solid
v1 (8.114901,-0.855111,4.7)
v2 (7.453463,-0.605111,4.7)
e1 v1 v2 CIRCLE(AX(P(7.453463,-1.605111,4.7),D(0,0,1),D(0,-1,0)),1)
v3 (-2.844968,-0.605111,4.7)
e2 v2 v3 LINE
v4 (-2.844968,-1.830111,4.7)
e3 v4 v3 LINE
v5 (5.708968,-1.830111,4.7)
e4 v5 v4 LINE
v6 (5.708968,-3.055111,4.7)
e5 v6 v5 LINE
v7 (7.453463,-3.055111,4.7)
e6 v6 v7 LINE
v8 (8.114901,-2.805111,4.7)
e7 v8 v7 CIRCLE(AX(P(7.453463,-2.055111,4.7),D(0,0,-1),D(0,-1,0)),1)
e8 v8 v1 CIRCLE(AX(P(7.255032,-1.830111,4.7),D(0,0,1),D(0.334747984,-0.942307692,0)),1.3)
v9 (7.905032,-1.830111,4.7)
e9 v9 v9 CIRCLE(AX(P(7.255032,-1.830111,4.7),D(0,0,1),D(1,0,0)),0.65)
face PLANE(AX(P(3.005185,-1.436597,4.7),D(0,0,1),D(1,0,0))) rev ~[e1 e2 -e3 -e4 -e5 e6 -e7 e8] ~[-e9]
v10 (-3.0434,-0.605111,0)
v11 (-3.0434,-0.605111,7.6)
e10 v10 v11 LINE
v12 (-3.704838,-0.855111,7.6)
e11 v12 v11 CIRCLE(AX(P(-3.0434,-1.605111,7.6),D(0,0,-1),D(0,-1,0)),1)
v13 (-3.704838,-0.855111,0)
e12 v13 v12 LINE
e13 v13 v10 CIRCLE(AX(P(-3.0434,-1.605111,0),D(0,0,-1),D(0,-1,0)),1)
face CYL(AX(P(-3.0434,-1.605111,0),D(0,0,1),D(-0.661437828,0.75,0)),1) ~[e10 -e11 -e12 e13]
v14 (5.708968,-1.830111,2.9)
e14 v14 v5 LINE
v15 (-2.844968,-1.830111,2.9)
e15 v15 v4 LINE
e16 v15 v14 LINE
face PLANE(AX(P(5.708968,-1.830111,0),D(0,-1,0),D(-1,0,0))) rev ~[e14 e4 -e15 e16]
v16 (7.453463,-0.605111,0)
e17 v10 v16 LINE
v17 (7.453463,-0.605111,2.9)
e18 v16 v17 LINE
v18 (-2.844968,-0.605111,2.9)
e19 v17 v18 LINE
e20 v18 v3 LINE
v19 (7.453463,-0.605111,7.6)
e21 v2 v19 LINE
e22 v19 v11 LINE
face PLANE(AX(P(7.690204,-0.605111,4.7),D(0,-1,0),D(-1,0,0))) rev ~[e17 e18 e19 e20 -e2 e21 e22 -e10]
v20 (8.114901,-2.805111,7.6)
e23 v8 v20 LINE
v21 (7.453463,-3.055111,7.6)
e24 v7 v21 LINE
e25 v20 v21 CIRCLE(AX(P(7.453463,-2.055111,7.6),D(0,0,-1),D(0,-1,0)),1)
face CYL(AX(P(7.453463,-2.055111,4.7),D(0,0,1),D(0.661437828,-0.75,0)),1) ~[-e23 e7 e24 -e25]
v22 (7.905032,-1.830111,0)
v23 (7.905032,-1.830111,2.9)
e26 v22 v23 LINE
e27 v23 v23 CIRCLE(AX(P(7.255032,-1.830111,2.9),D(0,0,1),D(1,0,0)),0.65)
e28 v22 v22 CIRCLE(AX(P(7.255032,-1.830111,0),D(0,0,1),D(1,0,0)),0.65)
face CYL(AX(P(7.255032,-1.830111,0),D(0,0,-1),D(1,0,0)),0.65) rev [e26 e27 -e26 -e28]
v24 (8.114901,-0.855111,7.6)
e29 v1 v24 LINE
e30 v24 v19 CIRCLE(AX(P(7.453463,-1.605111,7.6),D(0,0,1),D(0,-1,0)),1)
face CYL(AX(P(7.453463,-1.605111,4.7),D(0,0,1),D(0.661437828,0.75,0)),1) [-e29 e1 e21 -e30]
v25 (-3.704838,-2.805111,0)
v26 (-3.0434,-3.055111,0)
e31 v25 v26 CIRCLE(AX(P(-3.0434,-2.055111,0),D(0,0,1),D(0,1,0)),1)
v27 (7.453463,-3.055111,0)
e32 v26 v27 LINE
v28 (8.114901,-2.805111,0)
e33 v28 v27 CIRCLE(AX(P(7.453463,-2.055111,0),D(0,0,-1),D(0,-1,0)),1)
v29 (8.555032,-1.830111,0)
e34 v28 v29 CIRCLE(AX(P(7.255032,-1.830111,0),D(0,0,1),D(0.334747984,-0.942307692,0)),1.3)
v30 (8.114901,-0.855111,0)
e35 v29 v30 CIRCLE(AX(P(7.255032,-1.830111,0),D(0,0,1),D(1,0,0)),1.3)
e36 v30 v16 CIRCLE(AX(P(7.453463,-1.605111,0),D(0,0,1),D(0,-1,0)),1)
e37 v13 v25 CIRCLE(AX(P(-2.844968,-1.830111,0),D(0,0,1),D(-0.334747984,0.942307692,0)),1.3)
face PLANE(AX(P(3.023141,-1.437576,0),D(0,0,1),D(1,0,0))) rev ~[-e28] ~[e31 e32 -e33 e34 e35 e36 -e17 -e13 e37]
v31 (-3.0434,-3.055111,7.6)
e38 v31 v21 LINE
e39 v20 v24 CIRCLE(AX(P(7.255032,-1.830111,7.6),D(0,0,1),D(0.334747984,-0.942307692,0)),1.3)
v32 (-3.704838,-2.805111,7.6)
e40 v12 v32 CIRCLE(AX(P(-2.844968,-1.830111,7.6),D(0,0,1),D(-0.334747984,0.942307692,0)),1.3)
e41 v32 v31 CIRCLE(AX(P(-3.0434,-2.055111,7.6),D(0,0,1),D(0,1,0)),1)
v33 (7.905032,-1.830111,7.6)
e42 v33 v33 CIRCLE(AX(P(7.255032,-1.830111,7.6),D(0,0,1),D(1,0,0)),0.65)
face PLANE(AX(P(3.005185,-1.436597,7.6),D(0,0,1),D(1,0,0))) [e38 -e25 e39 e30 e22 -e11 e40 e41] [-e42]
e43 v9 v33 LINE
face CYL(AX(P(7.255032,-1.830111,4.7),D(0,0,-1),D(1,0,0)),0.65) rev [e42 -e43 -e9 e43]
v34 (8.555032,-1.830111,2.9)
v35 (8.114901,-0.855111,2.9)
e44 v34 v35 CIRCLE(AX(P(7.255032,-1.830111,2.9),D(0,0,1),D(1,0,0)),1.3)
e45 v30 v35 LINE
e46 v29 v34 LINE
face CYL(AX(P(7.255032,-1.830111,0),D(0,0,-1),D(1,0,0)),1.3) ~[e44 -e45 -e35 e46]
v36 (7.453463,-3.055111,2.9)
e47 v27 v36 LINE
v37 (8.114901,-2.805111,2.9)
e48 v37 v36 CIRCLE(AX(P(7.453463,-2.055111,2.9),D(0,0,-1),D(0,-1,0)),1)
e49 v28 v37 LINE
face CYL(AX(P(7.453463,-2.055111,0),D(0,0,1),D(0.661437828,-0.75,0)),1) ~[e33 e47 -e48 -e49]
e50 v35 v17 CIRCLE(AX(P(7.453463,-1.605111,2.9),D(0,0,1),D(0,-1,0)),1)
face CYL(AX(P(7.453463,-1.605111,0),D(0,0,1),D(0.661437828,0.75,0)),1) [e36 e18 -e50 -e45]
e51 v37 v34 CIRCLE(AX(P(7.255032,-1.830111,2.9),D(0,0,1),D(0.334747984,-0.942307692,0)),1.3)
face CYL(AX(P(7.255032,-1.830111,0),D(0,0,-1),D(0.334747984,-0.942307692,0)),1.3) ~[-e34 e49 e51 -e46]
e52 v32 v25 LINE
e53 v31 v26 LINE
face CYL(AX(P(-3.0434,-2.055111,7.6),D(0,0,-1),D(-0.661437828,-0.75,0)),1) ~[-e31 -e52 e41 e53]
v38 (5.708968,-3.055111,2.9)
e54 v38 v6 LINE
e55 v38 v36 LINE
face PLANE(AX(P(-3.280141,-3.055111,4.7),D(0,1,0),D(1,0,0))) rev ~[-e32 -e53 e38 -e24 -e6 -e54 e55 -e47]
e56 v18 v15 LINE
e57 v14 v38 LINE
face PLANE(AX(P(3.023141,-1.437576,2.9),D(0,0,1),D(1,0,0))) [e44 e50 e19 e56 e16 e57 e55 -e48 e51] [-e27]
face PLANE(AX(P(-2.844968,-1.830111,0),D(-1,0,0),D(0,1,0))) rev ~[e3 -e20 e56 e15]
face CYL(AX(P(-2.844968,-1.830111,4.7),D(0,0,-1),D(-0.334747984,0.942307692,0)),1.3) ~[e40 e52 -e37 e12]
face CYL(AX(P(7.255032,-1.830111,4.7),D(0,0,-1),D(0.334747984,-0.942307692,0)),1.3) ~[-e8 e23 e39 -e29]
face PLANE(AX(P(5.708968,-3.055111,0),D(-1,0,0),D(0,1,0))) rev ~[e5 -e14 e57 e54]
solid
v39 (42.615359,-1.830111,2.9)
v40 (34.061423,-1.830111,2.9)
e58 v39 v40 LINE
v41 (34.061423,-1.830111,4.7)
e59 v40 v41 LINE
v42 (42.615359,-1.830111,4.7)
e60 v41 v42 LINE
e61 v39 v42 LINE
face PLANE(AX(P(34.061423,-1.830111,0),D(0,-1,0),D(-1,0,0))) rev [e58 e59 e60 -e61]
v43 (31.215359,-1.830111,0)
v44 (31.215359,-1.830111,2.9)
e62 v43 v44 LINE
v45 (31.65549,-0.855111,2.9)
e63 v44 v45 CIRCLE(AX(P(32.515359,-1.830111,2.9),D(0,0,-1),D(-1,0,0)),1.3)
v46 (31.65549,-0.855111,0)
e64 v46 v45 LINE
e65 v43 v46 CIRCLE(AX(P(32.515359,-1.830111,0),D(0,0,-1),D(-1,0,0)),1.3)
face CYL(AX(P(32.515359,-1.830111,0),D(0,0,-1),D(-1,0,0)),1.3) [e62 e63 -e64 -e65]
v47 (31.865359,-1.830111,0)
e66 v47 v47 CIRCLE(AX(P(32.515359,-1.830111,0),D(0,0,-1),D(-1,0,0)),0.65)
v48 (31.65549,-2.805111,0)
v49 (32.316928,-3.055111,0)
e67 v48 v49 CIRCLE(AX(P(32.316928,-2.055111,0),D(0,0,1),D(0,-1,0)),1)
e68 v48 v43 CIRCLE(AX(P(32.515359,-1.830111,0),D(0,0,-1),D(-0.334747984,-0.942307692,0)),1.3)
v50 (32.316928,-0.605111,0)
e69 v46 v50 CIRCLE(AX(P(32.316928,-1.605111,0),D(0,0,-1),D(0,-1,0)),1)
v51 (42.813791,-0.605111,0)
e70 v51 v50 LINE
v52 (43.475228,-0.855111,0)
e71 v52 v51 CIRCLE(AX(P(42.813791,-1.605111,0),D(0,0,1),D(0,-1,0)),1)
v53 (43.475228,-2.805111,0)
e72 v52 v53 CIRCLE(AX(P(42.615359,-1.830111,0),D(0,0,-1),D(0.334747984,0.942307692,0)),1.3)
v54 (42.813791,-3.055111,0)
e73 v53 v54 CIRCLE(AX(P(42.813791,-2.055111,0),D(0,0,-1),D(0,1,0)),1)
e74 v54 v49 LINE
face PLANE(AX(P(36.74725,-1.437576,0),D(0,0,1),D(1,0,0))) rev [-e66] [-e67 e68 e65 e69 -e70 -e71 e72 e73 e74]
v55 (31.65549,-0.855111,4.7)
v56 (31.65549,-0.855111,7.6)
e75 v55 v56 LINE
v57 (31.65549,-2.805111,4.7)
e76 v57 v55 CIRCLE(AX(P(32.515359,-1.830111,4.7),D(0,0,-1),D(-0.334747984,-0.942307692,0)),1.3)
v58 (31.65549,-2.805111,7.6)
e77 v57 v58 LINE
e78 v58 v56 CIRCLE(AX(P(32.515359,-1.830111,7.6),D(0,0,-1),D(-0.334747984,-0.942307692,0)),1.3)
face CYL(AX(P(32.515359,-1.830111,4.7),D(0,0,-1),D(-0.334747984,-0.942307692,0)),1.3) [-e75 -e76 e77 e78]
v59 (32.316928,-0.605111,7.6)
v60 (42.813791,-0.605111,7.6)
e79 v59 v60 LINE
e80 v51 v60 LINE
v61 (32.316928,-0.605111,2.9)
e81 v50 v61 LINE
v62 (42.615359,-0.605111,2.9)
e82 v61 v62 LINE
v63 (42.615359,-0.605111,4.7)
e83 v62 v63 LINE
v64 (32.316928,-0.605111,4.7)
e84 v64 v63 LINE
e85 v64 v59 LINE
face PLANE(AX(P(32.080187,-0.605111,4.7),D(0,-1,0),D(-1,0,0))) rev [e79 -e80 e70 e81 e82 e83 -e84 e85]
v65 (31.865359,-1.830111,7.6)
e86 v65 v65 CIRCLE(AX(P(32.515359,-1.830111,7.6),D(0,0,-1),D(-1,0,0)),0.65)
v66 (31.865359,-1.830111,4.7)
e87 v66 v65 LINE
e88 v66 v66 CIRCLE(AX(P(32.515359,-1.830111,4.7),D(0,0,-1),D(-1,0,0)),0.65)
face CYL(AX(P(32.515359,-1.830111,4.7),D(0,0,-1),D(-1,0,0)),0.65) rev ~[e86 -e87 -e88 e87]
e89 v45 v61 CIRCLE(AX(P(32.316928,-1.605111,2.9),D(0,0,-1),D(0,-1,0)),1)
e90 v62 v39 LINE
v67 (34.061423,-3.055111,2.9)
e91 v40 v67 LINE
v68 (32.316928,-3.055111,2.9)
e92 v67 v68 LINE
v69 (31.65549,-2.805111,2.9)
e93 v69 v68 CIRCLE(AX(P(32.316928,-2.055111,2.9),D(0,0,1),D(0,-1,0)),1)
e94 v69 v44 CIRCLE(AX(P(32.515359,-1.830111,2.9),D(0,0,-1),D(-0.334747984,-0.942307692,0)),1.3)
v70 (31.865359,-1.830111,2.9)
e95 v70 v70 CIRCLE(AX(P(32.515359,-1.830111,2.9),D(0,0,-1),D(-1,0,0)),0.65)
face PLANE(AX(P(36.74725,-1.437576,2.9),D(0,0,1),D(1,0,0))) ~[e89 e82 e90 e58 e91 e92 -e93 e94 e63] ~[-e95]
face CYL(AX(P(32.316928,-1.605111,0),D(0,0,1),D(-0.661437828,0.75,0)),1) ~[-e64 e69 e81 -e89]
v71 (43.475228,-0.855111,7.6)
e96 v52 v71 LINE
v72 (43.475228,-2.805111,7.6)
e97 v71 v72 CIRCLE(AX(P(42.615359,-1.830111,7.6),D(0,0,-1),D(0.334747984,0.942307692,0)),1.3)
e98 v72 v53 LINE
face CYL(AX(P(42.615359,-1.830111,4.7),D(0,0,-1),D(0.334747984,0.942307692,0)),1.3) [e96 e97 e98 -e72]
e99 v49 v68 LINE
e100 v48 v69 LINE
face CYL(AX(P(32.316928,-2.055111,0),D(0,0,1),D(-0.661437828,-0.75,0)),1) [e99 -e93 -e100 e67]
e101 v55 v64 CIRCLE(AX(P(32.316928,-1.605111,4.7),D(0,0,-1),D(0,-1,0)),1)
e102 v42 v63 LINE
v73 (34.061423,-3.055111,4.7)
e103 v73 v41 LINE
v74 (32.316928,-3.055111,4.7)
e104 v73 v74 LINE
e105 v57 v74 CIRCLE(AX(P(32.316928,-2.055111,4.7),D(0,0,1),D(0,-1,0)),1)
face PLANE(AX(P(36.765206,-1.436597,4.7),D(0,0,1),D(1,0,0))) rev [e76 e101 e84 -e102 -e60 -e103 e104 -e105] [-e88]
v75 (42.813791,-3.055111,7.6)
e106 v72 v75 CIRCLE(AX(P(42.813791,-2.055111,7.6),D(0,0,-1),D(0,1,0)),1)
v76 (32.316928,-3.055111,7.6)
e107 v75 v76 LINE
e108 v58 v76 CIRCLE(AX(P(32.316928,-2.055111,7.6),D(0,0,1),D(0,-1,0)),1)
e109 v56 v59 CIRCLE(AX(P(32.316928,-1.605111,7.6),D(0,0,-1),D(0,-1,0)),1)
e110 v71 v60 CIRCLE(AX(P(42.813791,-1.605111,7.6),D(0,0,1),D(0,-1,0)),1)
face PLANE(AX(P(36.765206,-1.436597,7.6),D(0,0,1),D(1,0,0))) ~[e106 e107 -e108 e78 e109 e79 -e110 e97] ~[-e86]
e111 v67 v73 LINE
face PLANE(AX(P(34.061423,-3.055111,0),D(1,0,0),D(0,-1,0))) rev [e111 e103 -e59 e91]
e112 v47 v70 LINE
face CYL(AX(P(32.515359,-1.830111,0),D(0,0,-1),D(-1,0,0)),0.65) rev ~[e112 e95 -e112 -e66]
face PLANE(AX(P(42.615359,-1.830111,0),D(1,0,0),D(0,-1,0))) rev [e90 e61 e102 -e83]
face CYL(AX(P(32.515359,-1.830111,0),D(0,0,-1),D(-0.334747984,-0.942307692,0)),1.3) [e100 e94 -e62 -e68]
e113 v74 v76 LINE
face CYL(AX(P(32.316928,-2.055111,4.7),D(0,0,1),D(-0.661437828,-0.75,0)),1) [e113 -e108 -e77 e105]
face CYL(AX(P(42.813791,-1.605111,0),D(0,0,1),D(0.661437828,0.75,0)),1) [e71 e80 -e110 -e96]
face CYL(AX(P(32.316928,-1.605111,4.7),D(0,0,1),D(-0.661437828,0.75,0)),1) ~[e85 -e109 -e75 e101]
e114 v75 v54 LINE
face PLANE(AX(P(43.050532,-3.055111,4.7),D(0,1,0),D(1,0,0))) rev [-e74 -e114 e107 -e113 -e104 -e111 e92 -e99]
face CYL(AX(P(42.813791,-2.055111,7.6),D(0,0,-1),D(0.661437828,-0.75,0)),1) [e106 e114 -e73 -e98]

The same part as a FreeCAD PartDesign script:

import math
import FreeCAD as App
import Part
import Sketcher


def edges_at(feature, points):
    """Names of the edges that pass closest to the given points."""
    edges = feature.Shape.Edges
    near = lambda p: min(range(len(edges)), key=lambda i: edges[i].distToShape(Part.Vertex(*p))[0])
    return sorted({f"Edge{near(p) + 1}" for p in points})

doc = App.newDocument("Part")
body = doc.addObject("PartDesign::Body", "Body")

# Sketch on XY plane
sketch1 = body.newObject("Sketcher::SketchObject", "Sketch")
sketch1.AttachmentSupport = (doc.getObject("XY_Plane"), [""])
sketch1.MapMode = "FlatFace"
sketch1.addGeometry([
    Part.ArcOfCircle(Part.Circle(App.Vector(7.3, -1.8, 0), App.Vector(0, 0, 1), 1.3), math.radians(-70), math.radians(0)),  # 0
    Part.ArcOfCircle(Part.Circle(App.Vector(7.3, -1.8, 0), App.Vector(0, 0, 1), 1.3), math.radians(0), math.radians(70)),  # 1
    Part.LineSegment(App.Vector(7.7, -0.6, 0), App.Vector(-3.3, -0.6, 0)),  # 2
    Part.ArcOfCircle(Part.Circle(App.Vector(-2.8, -1.8, 0), App.Vector(0, 0, 1), 1.3), math.radians(110), math.radians(250)),  # 3
    Part.LineSegment(App.Vector(-3.3, -3.1, 0), App.Vector(7.7, -3.1, 0)),  # 4
    Part.Circle(App.Vector(7.3, -1.8, 0), App.Vector(0, 0, 1), 0.7),  # 5
], False)
sketch1.addConstraint([
    Sketcher.Constraint("Tangent", 0, 2, 1, 1),
    Sketcher.Constraint("Coincident", 1, 2, 2, 1),
    Sketcher.Constraint("Coincident", 2, 2, 3, 1),
    Sketcher.Constraint("Coincident", 3, 2, 4, 1),
    Sketcher.Constraint("Coincident", 4, 2, 0, 1),
    Sketcher.Constraint("Horizontal", 2),
    Sketcher.Constraint("Horizontal", 4),
    Sketcher.Constraint("Coincident", 5, 3, 0, 3),
    Sketcher.Constraint("Equal", 0, 1),
    Sketcher.Constraint("Equal", 1, 3),
    Sketcher.Constraint("Horizontal", 1, 3, 3, 3),
    Sketcher.Constraint("Horizontal", 5, 3, 0, 2),
    Sketcher.Constraint("Vertical", 2, 2, 3, 2),
    Sketcher.Constraint("Diameter", 5, 1.3),
    Sketcher.Constraint("Radius", 0, 1.3),
    Sketcher.Constraint("DistanceX", 3, 3, 0, 3, 10.1),
    Sketcher.Constraint("DistanceY", 3, 2, 2, 2, 2.45),
    Sketcher.Constraint("DistanceX", -1, 1, 0, 3, 7.255032),
    Sketcher.Constraint("DistanceY", 0, 3, -1, 1, 1.830111),
])
pad1 = body.newObject("PartDesign::Pad", "Pad")
pad1.Profile = sketch1
pad1.Length = 2.9

# Sketch on XY plane
sketch2 = body.newObject("Sketcher::SketchObject", "Sketch001")
sketch2.AttachmentSupport = (doc.getObject("XY_Plane"), [""])
sketch2.MapMode = "FlatFace"
sketch2.addGeometry([
    Part.LineSegment(App.Vector(5.71, -3.06, 0), App.Vector(5.71, -1.83, 0)),  # 0
    Part.LineSegment(App.Vector(5.71, -1.83, 0), App.Vector(-2.84, -1.83, 0)),  # 1
    Part.LineSegment(App.Vector(-2.84, -1.83, 0), App.Vector(-2.84, -0.61, 0)),  # 2
    Part.LineSegment(App.Vector(-2.84, -0.61, 0), App.Vector(-3.28, -0.61, 0)),  # 3
    Part.ArcOfCircle(Part.Circle(App.Vector(-2.84, -1.83, 0), App.Vector(0, 0, 1), 1.3), math.radians(110), math.radians(250)),  # 4
    Part.LineSegment(App.Vector(-3.28, -3.06, 0), App.Vector(5.71, -3.06, 0)),  # 5
], False)
sketch2.addConstraint([
    Sketcher.Constraint("Coincident", 0, 2, 1, 1),
    Sketcher.Constraint("Coincident", 1, 2, 2, 1),
    Sketcher.Constraint("Coincident", 2, 2, 3, 1),
    Sketcher.Constraint("Coincident", 3, 2, 4, 1),
    Sketcher.Constraint("Coincident", 4, 2, 5, 1),
    Sketcher.Constraint("Coincident", 5, 2, 0, 1),
    Sketcher.Constraint("Vertical", 0),
    Sketcher.Constraint("Horizontal", 1),
    Sketcher.Constraint("Vertical", 2),
    Sketcher.Constraint("Horizontal", 3),
    Sketcher.Constraint("Horizontal", 5),
    Sketcher.Constraint("Coincident", 1, 2, 4, 3),
    Sketcher.Constraint("Vertical", 3, 2, 4, 2),
    Sketcher.Constraint("Radius", 4, 1.3),
    Sketcher.Constraint("DistanceY", 0, 1, 0, 2, 1.225),
    Sketcher.Constraint("DistanceX", 5, 1, 5, 2, 8.989109),
    Sketcher.Constraint("DistanceX", 4, 3, -1, 1, 2.844968),
    Sketcher.Constraint("DistanceY", 4, 3, -1, 1, 1.830111),
])
pad2 = body.newObject("PartDesign::Pad", "Pad001")
pad2.Profile = sketch2
pad2.Length = 4.7

# Sketch on XY plane
sketch3 = body.newObject("Sketcher::SketchObject", "Sketch002")
sketch3.AttachmentSupport = (doc.getObject("XY_Plane"), [""])
sketch3.MapMode = "FlatFace"
sketch3.AttachmentOffset = App.Placement(App.Vector(0, 0, 4.7), App.Rotation())
sketch3.addGeometry([
    Part.ArcOfCircle(Part.Circle(App.Vector(7.3, -1.8, 0), App.Vector(0, 0, 1), 1.3), math.radians(-70), math.radians(70)),  # 0
    Part.LineSegment(App.Vector(7.7, -0.6, 0), App.Vector(-3.3, -0.6, 0)),  # 1
    Part.ArcOfCircle(Part.Circle(App.Vector(-2.8, -1.8, 0), App.Vector(0, 0, 1), 1.3), math.radians(110), math.radians(250)),  # 2
    Part.LineSegment(App.Vector(-3.3, -3.1, 0), App.Vector(7.7, -3.1, 0)),  # 3
    Part.Circle(App.Vector(7.3, -1.8, 0), App.Vector(0, 0, 1), 0.7),  # 4
], False)
sketch3.addConstraint([
    Sketcher.Constraint("Coincident", 0, 2, 1, 1),
    Sketcher.Constraint("Coincident", 1, 2, 2, 1),
    Sketcher.Constraint("Coincident", 2, 2, 3, 1),
    Sketcher.Constraint("Coincident", 3, 2, 0, 1),
    Sketcher.Constraint("Horizontal", 1),
    Sketcher.Constraint("Horizontal", 3),
    Sketcher.Constraint("Coincident", 4, 3, 0, 3),
    Sketcher.Constraint("Equal", 0, 2),
    Sketcher.Constraint("Horizontal", 0, 3, 2, 3),
    Sketcher.Constraint("Vertical", 1, 2, 2, 2),
    Sketcher.Constraint("Diameter", 4, 1.3),
    Sketcher.Constraint("Radius", 0, 1.3),
    Sketcher.Constraint("DistanceX", 2, 3, 0, 3, 10.1),
    Sketcher.Constraint("DistanceY", 2, 2, 1, 2, 2.45),
    Sketcher.Constraint("DistanceX", -1, 1, 0, 3, 7.255032),
    Sketcher.Constraint("DistanceY", 0, 3, -1, 1, 1.830111),
])
pad3 = body.newObject("PartDesign::Pad", "Pad002")
pad3.Profile = sketch3
pad3.Length = 2.9
doc.recompute()

fillet = body.newObject("PartDesign::Fillet", "Fillet")
fillet.Base = (pad3, edges_at(pad3, [
    (7.69, -0.605, 6.15),
    (7.69, -0.605, 1.45),
    (-3.28, -0.605, 3.8),
    (7.69, -3.055, 6.15),
    (-3.28, -3.055, 3.8),
    (7.69, -3.055, 1.45),
]))
fillet.Radius = 1
body2 = doc.addObject("PartDesign::Body", "Body001")
doc.recompute()

mirroring = doc.addObject("Part::Mirroring", "Mirroring")
mirroring.Source = body
mirroring.Base = App.Vector(19.885195, 0, 0)
mirroring.Normal = App.Vector(1, 0, 0)
body2.BaseFeature = mirroring
doc.recompute()
mirroring.Visibility = False

doc.recompute()
